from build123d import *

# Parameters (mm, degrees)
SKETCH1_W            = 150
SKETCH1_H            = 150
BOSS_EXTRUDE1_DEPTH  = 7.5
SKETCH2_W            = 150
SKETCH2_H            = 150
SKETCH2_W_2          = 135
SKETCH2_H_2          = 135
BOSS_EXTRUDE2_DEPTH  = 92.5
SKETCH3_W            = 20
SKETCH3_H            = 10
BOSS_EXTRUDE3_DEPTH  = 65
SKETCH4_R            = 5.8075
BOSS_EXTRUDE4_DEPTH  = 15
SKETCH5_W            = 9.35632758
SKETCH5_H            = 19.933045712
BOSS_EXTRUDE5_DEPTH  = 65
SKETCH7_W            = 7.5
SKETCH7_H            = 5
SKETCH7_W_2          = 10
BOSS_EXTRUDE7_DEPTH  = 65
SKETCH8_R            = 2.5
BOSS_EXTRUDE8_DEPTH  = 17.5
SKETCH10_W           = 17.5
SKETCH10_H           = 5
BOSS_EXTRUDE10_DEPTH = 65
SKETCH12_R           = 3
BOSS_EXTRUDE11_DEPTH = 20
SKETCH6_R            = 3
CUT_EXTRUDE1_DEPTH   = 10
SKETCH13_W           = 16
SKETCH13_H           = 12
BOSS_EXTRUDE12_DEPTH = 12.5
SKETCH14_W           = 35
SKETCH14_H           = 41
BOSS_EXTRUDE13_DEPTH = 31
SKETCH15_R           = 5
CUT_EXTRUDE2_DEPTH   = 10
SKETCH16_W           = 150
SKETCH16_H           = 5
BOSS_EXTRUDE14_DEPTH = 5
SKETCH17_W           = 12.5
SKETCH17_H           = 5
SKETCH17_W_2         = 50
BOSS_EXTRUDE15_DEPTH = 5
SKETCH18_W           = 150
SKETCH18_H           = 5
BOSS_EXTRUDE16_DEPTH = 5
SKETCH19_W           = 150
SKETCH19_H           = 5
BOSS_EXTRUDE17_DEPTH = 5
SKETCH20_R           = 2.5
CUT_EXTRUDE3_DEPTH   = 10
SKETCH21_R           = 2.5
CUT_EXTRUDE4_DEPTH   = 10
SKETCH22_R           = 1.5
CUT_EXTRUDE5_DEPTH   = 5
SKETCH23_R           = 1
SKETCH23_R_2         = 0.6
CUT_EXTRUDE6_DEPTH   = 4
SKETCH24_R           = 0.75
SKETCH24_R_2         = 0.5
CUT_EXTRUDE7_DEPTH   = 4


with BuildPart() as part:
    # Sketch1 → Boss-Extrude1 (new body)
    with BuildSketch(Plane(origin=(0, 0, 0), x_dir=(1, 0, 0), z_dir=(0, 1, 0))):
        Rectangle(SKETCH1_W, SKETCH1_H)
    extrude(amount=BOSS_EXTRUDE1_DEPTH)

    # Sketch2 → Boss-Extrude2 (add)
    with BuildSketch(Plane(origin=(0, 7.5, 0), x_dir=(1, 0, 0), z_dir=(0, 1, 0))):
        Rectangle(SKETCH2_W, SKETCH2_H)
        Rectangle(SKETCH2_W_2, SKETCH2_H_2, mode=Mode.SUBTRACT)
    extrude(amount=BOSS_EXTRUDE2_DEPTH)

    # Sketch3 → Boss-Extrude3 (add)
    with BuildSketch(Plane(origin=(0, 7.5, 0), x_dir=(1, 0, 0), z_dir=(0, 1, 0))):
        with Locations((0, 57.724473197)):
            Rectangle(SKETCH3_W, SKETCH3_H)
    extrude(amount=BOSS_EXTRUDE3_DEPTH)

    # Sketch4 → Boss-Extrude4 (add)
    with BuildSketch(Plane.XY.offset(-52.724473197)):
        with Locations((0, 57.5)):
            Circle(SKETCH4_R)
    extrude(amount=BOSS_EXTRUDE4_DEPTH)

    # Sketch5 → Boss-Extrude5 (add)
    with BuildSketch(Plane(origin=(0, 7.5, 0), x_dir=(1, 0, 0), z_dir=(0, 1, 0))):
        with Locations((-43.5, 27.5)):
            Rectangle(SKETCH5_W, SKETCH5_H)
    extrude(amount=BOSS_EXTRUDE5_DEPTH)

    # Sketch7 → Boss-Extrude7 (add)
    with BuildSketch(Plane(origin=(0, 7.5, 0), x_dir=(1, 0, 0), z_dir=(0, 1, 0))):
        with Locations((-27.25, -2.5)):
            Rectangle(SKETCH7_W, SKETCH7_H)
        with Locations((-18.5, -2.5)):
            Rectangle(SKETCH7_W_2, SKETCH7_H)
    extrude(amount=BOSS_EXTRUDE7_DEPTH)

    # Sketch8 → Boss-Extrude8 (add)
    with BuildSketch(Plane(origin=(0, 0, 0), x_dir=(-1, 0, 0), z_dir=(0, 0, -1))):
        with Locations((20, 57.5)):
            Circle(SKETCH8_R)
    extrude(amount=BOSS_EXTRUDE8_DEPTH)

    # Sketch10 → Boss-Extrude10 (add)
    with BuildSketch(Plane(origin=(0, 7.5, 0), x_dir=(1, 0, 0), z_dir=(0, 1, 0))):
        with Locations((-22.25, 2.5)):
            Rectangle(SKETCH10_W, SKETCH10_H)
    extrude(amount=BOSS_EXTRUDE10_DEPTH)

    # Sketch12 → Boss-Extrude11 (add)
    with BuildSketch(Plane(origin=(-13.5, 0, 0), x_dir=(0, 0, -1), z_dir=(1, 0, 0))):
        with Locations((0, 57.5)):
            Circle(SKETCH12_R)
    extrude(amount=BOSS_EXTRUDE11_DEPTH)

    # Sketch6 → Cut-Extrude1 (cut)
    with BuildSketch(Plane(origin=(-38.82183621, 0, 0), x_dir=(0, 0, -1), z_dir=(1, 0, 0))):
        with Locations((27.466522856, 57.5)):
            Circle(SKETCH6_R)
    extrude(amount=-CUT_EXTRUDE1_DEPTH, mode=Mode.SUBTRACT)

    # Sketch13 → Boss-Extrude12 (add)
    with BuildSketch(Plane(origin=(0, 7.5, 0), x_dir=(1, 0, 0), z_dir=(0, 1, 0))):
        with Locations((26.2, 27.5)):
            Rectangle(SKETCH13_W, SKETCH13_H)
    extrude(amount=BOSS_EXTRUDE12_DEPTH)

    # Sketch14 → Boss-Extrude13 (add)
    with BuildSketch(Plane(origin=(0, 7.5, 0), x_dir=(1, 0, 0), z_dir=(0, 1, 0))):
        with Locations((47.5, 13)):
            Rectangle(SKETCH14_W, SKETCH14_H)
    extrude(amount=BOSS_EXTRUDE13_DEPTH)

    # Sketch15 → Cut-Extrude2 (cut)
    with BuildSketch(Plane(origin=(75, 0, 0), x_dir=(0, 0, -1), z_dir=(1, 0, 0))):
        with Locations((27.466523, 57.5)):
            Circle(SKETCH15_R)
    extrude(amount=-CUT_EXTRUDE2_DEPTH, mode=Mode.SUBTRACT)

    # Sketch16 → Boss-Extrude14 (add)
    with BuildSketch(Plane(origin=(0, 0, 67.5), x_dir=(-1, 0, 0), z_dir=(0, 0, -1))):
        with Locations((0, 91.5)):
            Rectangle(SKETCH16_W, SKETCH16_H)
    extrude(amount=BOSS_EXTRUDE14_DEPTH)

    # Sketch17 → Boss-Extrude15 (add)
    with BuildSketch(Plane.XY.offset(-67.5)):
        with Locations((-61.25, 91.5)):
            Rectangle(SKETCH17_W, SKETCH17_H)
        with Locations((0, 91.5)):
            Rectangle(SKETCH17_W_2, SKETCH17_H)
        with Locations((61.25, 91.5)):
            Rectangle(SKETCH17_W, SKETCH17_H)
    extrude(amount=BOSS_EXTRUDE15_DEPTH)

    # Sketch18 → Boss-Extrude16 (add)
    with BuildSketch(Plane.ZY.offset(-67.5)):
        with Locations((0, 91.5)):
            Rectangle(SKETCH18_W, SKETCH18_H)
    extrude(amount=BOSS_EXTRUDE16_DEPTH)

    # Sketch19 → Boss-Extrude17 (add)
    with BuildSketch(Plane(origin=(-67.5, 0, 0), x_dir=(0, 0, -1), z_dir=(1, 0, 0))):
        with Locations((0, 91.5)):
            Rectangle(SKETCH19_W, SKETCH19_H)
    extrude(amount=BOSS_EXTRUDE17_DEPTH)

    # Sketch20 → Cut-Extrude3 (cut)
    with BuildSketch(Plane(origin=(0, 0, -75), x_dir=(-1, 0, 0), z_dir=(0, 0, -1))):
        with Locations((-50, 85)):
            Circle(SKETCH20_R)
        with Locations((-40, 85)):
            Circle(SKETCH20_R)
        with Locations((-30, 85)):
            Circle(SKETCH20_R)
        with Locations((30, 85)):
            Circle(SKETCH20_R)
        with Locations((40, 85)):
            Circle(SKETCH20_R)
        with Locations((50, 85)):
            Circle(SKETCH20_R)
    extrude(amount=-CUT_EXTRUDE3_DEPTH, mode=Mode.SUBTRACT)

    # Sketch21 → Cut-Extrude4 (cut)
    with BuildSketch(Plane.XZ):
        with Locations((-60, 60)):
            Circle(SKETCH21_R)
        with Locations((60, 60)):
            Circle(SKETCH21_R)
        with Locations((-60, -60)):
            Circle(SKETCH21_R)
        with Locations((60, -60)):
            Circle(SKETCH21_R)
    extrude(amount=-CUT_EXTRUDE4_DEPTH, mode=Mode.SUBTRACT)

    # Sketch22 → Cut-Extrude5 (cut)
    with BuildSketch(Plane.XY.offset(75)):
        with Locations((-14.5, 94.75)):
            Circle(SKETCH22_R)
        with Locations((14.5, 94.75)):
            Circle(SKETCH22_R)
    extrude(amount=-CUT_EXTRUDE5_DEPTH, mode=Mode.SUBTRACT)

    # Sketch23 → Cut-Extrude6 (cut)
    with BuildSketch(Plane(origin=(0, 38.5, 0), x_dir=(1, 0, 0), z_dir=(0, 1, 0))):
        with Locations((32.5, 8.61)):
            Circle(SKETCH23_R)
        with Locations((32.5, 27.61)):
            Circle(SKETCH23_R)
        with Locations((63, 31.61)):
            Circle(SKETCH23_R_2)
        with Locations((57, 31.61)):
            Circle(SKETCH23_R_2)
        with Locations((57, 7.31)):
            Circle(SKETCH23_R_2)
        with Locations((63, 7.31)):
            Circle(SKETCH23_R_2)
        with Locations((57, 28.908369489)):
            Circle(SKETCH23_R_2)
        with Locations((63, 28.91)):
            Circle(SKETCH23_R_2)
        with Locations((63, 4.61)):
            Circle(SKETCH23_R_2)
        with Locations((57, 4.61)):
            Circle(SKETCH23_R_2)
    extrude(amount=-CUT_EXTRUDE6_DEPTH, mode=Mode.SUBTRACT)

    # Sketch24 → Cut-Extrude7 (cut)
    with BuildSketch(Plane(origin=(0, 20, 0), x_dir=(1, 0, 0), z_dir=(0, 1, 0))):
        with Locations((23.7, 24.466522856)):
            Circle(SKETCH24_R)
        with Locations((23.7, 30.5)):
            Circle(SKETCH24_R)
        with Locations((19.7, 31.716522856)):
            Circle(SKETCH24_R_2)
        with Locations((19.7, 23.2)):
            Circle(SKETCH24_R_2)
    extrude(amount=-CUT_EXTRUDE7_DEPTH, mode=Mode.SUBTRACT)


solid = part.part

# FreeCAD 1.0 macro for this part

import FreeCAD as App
import Part
import Sketcher
from FreeCAD import Vector
Q = App.Units.Quantity

doc = App.newDocument("Part")
body = doc.addObject("PartDesign::Body", "Body")

# Sketch on XZ plane
sketch1 = doc.addObject("Sketcher::SketchObject", "Sketch")
body.addObject(sketch1)
sketch1.AttachmentSupport = (doc.XZ_Plane, [""])
sketch1.MapMode = "FlatFace"
sketch1.addGeometry(Part.LineSegment(Vector(-75, -75, 0), Vector(-75, 75, 0)), False)
sketch1.addGeometry(Part.LineSegment(Vector(-75, 75, 0), Vector(75, 75, 0)), False)
sketch1.addGeometry(Part.LineSegment(Vector(75, 75, 0), Vector(75, -75, 0)), False)
sketch1.addGeometry(Part.LineSegment(Vector(75, -75, 0), Vector(-75, -75, 0)), False)
sketch1.addConstraint(Sketcher.Constraint("Coincident", 0, 2, 1, 1))
sketch1.addConstraint(Sketcher.Constraint("Coincident", 1, 2, 2, 1))
sketch1.addConstraint(Sketcher.Constraint("Coincident", 2, 2, 3, 1))
sketch1.addConstraint(Sketcher.Constraint("Coincident", 3, 2, 0, 1))
sketch1.addConstraint(Sketcher.Constraint("Vertical", 0))
sketch1.addConstraint(Sketcher.Constraint("Horizontal", 1))
sketch1.addConstraint(Sketcher.Constraint("Vertical", 2))
sketch1.addConstraint(Sketcher.Constraint("Horizontal", 3))
sketch1.addConstraint(Sketcher.Constraint("Symmetric", 0, 2, 2, 2, -1, 1))
sketch1.addConstraint(Sketcher.Constraint("Equal", 3, 0))
sketch1.addConstraint(Sketcher.Constraint("DistanceX", 1, 1, 1, 2, Q("150 mm")))
pad1 = doc.addObject("PartDesign::Pad", "Pad")
body.addObject(pad1)
pad1.Profile = sketch1
pad1.Length = 7.5
pad1.Reversed = True

# Sketch on XZ plane
sketch2 = doc.addObject("Sketcher::SketchObject", "Sketch001")
body.addObject(sketch2)
sketch2.AttachmentSupport = (doc.XZ_Plane, [""])
sketch2.MapMode = "FlatFace"
sketch2.AttachmentOffset = App.Placement(Vector(0, 0, -7.5), App.Rotation())
sketch2.addGeometry(Part.LineSegment(Vector(-75, -75, 0), Vector(-75, 75, 0)), False)
sketch2.addGeometry(Part.LineSegment(Vector(-75, 75, 0), Vector(75, 75, 0)), False)
sketch2.addGeometry(Part.LineSegment(Vector(75, 75, 0), Vector(75, -75, 0)), False)
sketch2.addGeometry(Part.LineSegment(Vector(75, -75, 0), Vector(-75, -75, 0)), False)
sketch2.addGeometry(Part.LineSegment(Vector(68, 68, 0), Vector(-68, 68, 0)), False)
sketch2.addGeometry(Part.LineSegment(Vector(-68, 68, 0), Vector(-68, -68, 0)), False)
sketch2.addGeometry(Part.LineSegment(Vector(-68, -68, 0), Vector(68, -68, 0)), False)
sketch2.addGeometry(Part.LineSegment(Vector(68, -68, 0), Vector(68, 68, 0)), False)
sketch2.addConstraint(Sketcher.Constraint("Coincident", 0, 2, 1, 1))
sketch2.addConstraint(Sketcher.Constraint("Coincident", 1, 2, 2, 1))
sketch2.addConstraint(Sketcher.Constraint("Coincident", 2, 2, 3, 1))
sketch2.addConstraint(Sketcher.Constraint("Coincident", 3, 2, 0, 1))
sketch2.addConstraint(Sketcher.Constraint("Coincident", 4, 2, 5, 1))
sketch2.addConstraint(Sketcher.Constraint("Coincident", 5, 2, 6, 1))
sketch2.addConstraint(Sketcher.Constraint("Coincident", 6, 2, 7, 1))
sketch2.addConstraint(Sketcher.Constraint("Coincident", 7, 2, 4, 1))
sketch2.addConstraint(Sketcher.Constraint("Vertical", 0))
sketch2.addConstraint(Sketcher.Constraint("Horizontal", 1))
sketch2.addConstraint(Sketcher.Constraint("Vertical", 2))
sketch2.addConstraint(Sketcher.Constraint("Horizontal", 3))
sketch2.addConstraint(Sketcher.Constraint("Horizontal", 4))
sketch2.addConstraint(Sketcher.Constraint("Vertical", 5))
sketch2.addConstraint(Sketcher.Constraint("Horizontal", 6))
sketch2.addConstraint(Sketcher.Constraint("Vertical", 7))
sketch2.addConstraint(Sketcher.Constraint("Symmetric", 0, 2, 2, 2, -1, 1))
sketch2.addConstraint(Sketcher.Constraint("Symmetric", 4, 2, 6, 2, -1, 1))
sketch2.addConstraint(Sketcher.Constraint("Equal", 3, 0))
sketch2.addConstraint(Sketcher.Constraint("Equal", 6, 5))
sketch2.addConstraint(Sketcher.Constraint("DistanceX", 1, 1, 1, 2, Q("150 mm")))
sketch2.addConstraint(Sketcher.Constraint("DistanceX", 4, 2, 4, 1, Q("135 mm")))
pad2 = doc.addObject("PartDesign::Pad", "Pad001")
body.addObject(pad2)
pad2.Profile = sketch2
pad2.Length = 92.5
pad2.Reversed = True

# Sketch on XZ plane
sketch3 = doc.addObject("Sketcher::SketchObject", "Sketch002")
body.addObject(sketch3)
sketch3.AttachmentSupport = (doc.XZ_Plane, [""])
sketch3.MapMode = "FlatFace"
sketch3.AttachmentOffset = App.Placement(Vector(0, 0, -7.5), App.Rotation())
sketch3.addGeometry(Part.LineSegment(Vector(-10, -63, 0), Vector(-10, -53, 0)), False)
sketch3.addGeometry(Part.LineSegment(Vector(-10, -53, 0), Vector(10, -53, 0)), False)
sketch3.addGeometry(Part.LineSegment(Vector(10, -53, 0), Vector(10, -63, 0)), False)
sketch3.addGeometry(Part.LineSegment(Vector(10, -63, 0), Vector(-10, -63, 0)), False)
sketch3.addConstraint(Sketcher.Constraint("Coincident", 0, 2, 1, 1))
sketch3.addConstraint(Sketcher.Constraint("Coincident", 1, 2, 2, 1))
sketch3.addConstraint(Sketcher.Constraint("Coincident", 2, 2, 3, 1))
sketch3.addConstraint(Sketcher.Constraint("Coincident", 3, 2, 0, 1))
sketch3.addConstraint(Sketcher.Constraint("Vertical", 0))
sketch3.addConstraint(Sketcher.Constraint("Horizontal", 1))
sketch3.addConstraint(Sketcher.Constraint("Vertical", 2))
sketch3.addConstraint(Sketcher.Constraint("Horizontal", 3))
sketch3.addConstraint(Sketcher.Constraint("DistanceX", 1, 1, 1, 2, Q("20 mm")))
sketch3.addConstraint(Sketcher.Constraint("DistanceY", 0, 1, 0, 2, Q("10 mm")))
sketch3.addConstraint(Sketcher.Constraint("DistanceX", 0, 2, -1, 1, Q("10 mm")))
sketch3.addConstraint(Sketcher.Constraint("DistanceY", 0, 2, -1, 1, Q("52.724473 mm")))
pad3 = doc.addObject("PartDesign::Pad", "Pad002")
body.addObject(pad3)
pad3.Profile = sketch3
pad3.Length = 65
pad3.Reversed = True

# Sketch on XY plane
sketch4 = doc.addObject("Sketcher::SketchObject", "Sketch003")
body.addObject(sketch4)
sketch4.AttachmentSupport = (doc.XY_Plane, [""])
sketch4.MapMode = "FlatFace"
sketch4.AttachmentOffset = App.Placement(Vector(0, 0, -52.724473), App.Rotation())
sketch4.addGeometry(Part.Circle(Vector(0, 58, 0), Vector(0, 0, 1), 6), False)
sketch4.addConstraint(Sketcher.Constraint("PointOnObject", 0, 3, -2))
sketch4.addConstraint(Sketcher.Constraint("Diameter", 0, Q("11.615 mm")))
sketch4.addConstraint(Sketcher.Constraint("DistanceY", -1, 1, 0, 3, Q("57.5 mm")))
pad4 = doc.addObject("PartDesign::Pad", "Pad003")
body.addObject(pad4)
pad4.Profile = sketch4
pad4.Length = 15

# Sketch on XZ plane
sketch5 = doc.addObject("Sketcher::SketchObject", "Sketch004")
body.addObject(sketch5)
sketch5.AttachmentSupport = (doc.XZ_Plane, [""])
sketch5.MapMode = "FlatFace"
sketch5.AttachmentOffset = App.Placement(Vector(0, 0, -7.5), App.Rotation())
sketch5.addGeometry(Part.LineSegment(Vector(-48, -37, 0), Vector(-48, -18, 0)), False)
sketch5.addGeometry(Part.LineSegment(Vector(-48, -18, 0), Vector(-39, -18, 0)), False)
sketch5.addGeometry(Part.LineSegment(Vector(-39, -18, 0), Vector(-39, -37, 0)), False)
sketch5.addGeometry(Part.LineSegment(Vector(-39, -37, 0), Vector(-48, -37, 0)), False)
sketch5.addConstraint(Sketcher.Constraint("Coincident", 0, 2, 1, 1))
sketch5.addConstraint(Sketcher.Constraint("Coincident", 1, 2, 2, 1))
sketch5.addConstraint(Sketcher.Constraint("Coincident", 2, 2, 3, 1))
sketch5.addConstraint(Sketcher.Constraint("Coincident", 3, 2, 0, 1))
sketch5.addConstraint(Sketcher.Constraint("Vertical", 0))
sketch5.addConstraint(Sketcher.Constraint("Horizontal", 1))
sketch5.addConstraint(Sketcher.Constraint("Vertical", 2))
sketch5.addConstraint(Sketcher.Constraint("Horizontal", 3))
sketch5.addConstraint(Sketcher.Constraint("DistanceX", 1, 1, 1, 2, Q("9.356328 mm")))
sketch5.addConstraint(Sketcher.Constraint("DistanceY", 0, 1, 0, 2, Q("19.933046 mm")))
sketch5.addConstraint(Sketcher.Constraint("DistanceX", 0, 2, -1, 1, Q("48.178164 mm")))
sketch5.addConstraint(Sketcher.Constraint("DistanceY", 0, 2, -1, 1, Q("17.533477 mm")))
pad5 = doc.addObject("PartDesign::Pad", "Pad004")
body.addObject(pad5)
pad5.Profile = sketch5
pad5.Length = 65
pad5.Reversed = True

# Sketch on XZ plane
sketch6 = doc.addObject("Sketcher::SketchObject", "Sketch005")
body.addObject(sketch6)
sketch6.AttachmentSupport = (doc.XZ_Plane, [""])
sketch6.MapMode = "FlatFace"
sketch6.AttachmentOffset = App.Placement(Vector(0, 0, -7.5), App.Rotation())
sketch6.addGeometry(Part.LineSegment(Vector(-31, 0, 0), Vector(-31, 5, 0)), False)
sketch6.addGeometry(Part.LineSegment(Vector(-31, 5, 0), Vector(-14, 5, 0)), False)
sketch6.addGeometry(Part.LineSegment(Vector(-14, 5, 0), Vector(-14, 0, 0)), False)
sketch6.addGeometry(Part.LineSegment(Vector(-14, 0, 0), Vector(-31, 0, 0)), False)
sketch6.addConstraint(Sketcher.Constraint("Coincident", 0, 2, 1, 1))
sketch6.addConstraint(Sketcher.Constraint("Coincident", 1, 2, 2, 1))
sketch6.addConstraint(Sketcher.Constraint("Coincident", 2, 2, 3, 1))
sketch6.addConstraint(Sketcher.Constraint("Coincident", 3, 2, 0, 1))
sketch6.addConstraint(Sketcher.Constraint("Vertical", 0))
sketch6.addConstraint(Sketcher.Constraint("Horizontal", 1))
sketch6.addConstraint(Sketcher.Constraint("Vertical", 2))
sketch6.addConstraint(Sketcher.Constraint("Horizontal", 3))
sketch6.addConstraint(Sketcher.Constraint("PointOnObject", 2, 2, -1))
sketch6.addConstraint(Sketcher.Constraint("DistanceY", 0, 1, 0, 2, Q("5 mm")))
sketch6.addConstraint(Sketcher.Constraint("DistanceX", 1, 1, 1, 2, Q("17.5 mm")))
sketch6.addConstraint(Sketcher.Constraint("DistanceX", 0, 2, -1, 1, Q("31 mm")))
pad6 = doc.addObject("PartDesign::Pad", "Pad005")
body.addObject(pad6)
pad6.Profile = sketch6
pad6.Length = 65
pad6.Reversed = True

# Sketch on XY plane
sketch7 = doc.addObject("Sketcher::SketchObject", "Sketch006")
body.addObject(sketch7)
sketch7.AttachmentSupport = (doc.XY_Plane, [""])
sketch7.MapMode = "FlatFace"
sketch7.addGeometry(Part.Circle(Vector(-20, 57.5, 0), Vector(0, 0, 1), 2.5), False)
sketch7.addConstraint(Sketcher.Constraint("Diameter", 0, Q("5 mm")))
sketch7.addConstraint(Sketcher.Constraint("DistanceX", 0, 3, -1, 1, Q("20 mm")))
sketch7.addConstraint(Sketcher.Constraint("DistanceY", -1, 1, 0, 3, Q("57.5 mm")))
pad7 = doc.addObject("PartDesign::Pad", "Pad006")
body.addObject(pad7)
pad7.Profile = sketch7
pad7.Length = 17.5
pad7.Reversed = True

# Sketch on XZ plane
sketch8 = doc.addObject("Sketcher::SketchObject", "Sketch007")
body.addObject(sketch8)
sketch8.AttachmentSupport = (doc.XZ_Plane, [""])
sketch8.MapMode = "FlatFace"
sketch8.AttachmentOffset = App.Placement(Vector(0, 0, -7.5), App.Rotation())
sketch8.addGeometry(Part.LineSegment(Vector(-31, -5, 0), Vector(-31, 0, 0)), False)
sketch8.addGeometry(Part.LineSegment(Vector(-31, 0, 0), Vector(-14, 0, 0)), False)
sketch8.addGeometry(Part.LineSegment(Vector(-14, 0, 0), Vector(-14, -5, 0)), False)
sketch8.addGeometry(Part.LineSegment(Vector(-14, -5, 0), Vector(-31, -5, 0)), False)
sketch8.addConstraint(Sketcher.Constraint("Coincident", 0, 2, 1, 1))
sketch8.addConstraint(Sketcher.Constraint("Coincident", 1, 2, 2, 1))
sketch8.addConstraint(Sketcher.Constraint("Coincident", 2, 2, 3, 1))
sketch8.addConstraint(Sketcher.Constraint("Coincident", 3, 2, 0, 1))
sketch8.addConstraint(Sketcher.Constraint("Vertical", 0))
sketch8.addConstraint(Sketcher.Constraint("Horizontal", 1))
sketch8.addConstraint(Sketcher.Constraint("Vertical", 2))
sketch8.addConstraint(Sketcher.Constraint("Horizontal", 3))
sketch8.addConstraint(Sketcher.Constraint("PointOnObject", 0, 2, -1))
sketch8.addConstraint(Sketcher.Constraint("DistanceY", 0, 1, 0, 2, Q("5 mm")))
sketch8.addConstraint(Sketcher.Constraint("DistanceX", 1, 1, 1, 2, Q("17.5 mm")))
sketch8.addConstraint(Sketcher.Constraint("DistanceX", 0, 2, -1, 1, Q("31 mm")))
pad8 = doc.addObject("PartDesign::Pad", "Pad007")
body.addObject(pad8)
pad8.Profile = sketch8
pad8.Length = 65
pad8.Reversed = True

# Sketch on YZ plane
sketch9 = doc.addObject("Sketcher::SketchObject", "Sketch008")
body.addObject(sketch9)
sketch9.AttachmentSupport = (doc.YZ_Plane, [""])
sketch9.MapMode = "FlatFace"
sketch9.AttachmentOffset = App.Placement(Vector(0, 0, -13.5), App.Rotation())
sketch9.addGeometry(Part.Circle(Vector(57.5, 0, 0), Vector(0, 0, 1), 3), False)
sketch9.addConstraint(Sketcher.Constraint("PointOnObject", 0, 3, -1))
sketch9.addConstraint(Sketcher.Constraint("Diameter", 0, Q("6 mm")))
sketch9.addConstraint(Sketcher.Constraint("DistanceX", -1, 1, 0, 3, Q("57.5 mm")))
pad9 = doc.addObject("PartDesign::Pad", "Pad008")
body.addObject(pad9)
pad9.Profile = sketch9
pad9.Length = 20

# Sketch on YZ plane
sketch10 = doc.addObject("Sketcher::SketchObject", "Sketch009")
body.addObject(sketch10)
sketch10.AttachmentSupport = (doc.YZ_Plane, [""])
sketch10.MapMode = "FlatFace"
sketch10.AttachmentOffset = App.Placement(Vector(0, 0, -38.821836), App.Rotation())
sketch10.addGeometry(Part.Circle(Vector(57.5, -27.5, 0), Vector(0, 0, 1), 3), False)
sketch10.addConstraint(Sketcher.Constraint("Diameter", 0, Q("6 mm")))
sketch10.addConstraint(Sketcher.Constraint("DistanceX", -1, 1, 0, 3, Q("57.5 mm")))
sketch10.addConstraint(Sketcher.Constraint("DistanceY", 0, 3, -1, 1, Q("27.466523 mm")))
pocket1 = doc.addObject("PartDesign::Pocket", "Pocket")
body.addObject(pocket1)
pocket1.Profile = sketch10
pocket1.Length = 10

# Sketch on XZ plane
sketch11 = doc.addObject("Sketcher::SketchObject", "Sketch010")
body.addObject(sketch11)
sketch11.AttachmentSupport = (doc.XZ_Plane, [""])
sketch11.MapMode = "FlatFace"
sketch11.AttachmentOffset = App.Placement(Vector(0, 0, -7.5), App.Rotation())
sketch11.addGeometry(Part.LineSegment(Vector(18, -34, 0), Vector(18, -22, 0)), False)
sketch11.addGeometry(Part.LineSegment(Vector(18, -22, 0), Vector(34, -22, 0)), False)
sketch11.addGeometry(Part.LineSegment(Vector(34, -22, 0), Vector(34, -34, 0)), False)
sketch11.addGeometry(Part.LineSegment(Vector(34, -34, 0), Vector(18, -34, 0)), False)
sketch11.addConstraint(Sketcher.Constraint("Coincident", 0, 2, 1, 1))
sketch11.addConstraint(Sketcher.Constraint("Coincident", 1, 2, 2, 1))
sketch11.addConstraint(Sketcher.Constraint("Coincident", 2, 2, 3, 1))
sketch11.addConstraint(Sketcher.Constraint("Coincident", 3, 2, 0, 1))
sketch11.addConstraint(Sketcher.Constraint("Vertical", 0))
sketch11.addConstraint(Sketcher.Constraint("Horizontal", 1))
sketch11.addConstraint(Sketcher.Constraint("Vertical", 2))
sketch11.addConstraint(Sketcher.Constraint("Horizontal", 3))
sketch11.addConstraint(Sketcher.Constraint("DistanceX", 1, 1, 1, 2, Q("16 mm")))
sketch11.addConstraint(Sketcher.Constraint("DistanceY", 0, 1, 0, 2, Q("12 mm")))
sketch11.addConstraint(Sketcher.Constraint("DistanceX", -1, 1, 0, 2, Q("18.2 mm")))
sketch11.addConstraint(Sketcher.Constraint("DistanceY", 0, 2, -1, 1, Q("21.5 mm")))
pad10 = doc.addObject("PartDesign::Pad", "Pad009")
body.addObject(pad10)
pad10.Profile = sketch11
pad10.Length = 12.5
pad10.Reversed = True

# Sketch on XZ plane
sketch12 = doc.addObject("Sketcher::SketchObject", "Sketch011")
body.addObject(sketch12)
sketch12.AttachmentSupport = (doc.XZ_Plane, [""])
sketch12.MapMode = "FlatFace"
sketch12.AttachmentOffset = App.Placement(Vector(0, 0, -7.5), App.Rotation())
sketch12.addGeometry(Part.LineSegment(Vector(30, -34, 0), Vector(30, 8, 0)), False)
sketch12.addGeometry(Part.LineSegment(Vector(30, 8, 0), Vector(65, 8, 0)), False)
sketch12.addGeometry(Part.LineSegment(Vector(65, 8, 0), Vector(65, -34, 0)), False)
sketch12.addGeometry(Part.LineSegment(Vector(65, -34, 0), Vector(30, -34, 0)), False)
sketch12.addConstraint(Sketcher.Constraint("Coincident", 0, 2, 1, 1))
sketch12.addConstraint(Sketcher.Constraint("Coincident", 1, 2, 2, 1))
sketch12.addConstraint(Sketcher.Constraint("Coincident", 2, 2, 3, 1))
sketch12.addConstraint(Sketcher.Constraint("Coincident", 3, 2, 0, 1))
sketch12.addConstraint(Sketcher.Constraint("Vertical", 0))
sketch12.addConstraint(Sketcher.Constraint("Horizontal", 1))
sketch12.addConstraint(Sketcher.Constraint("Vertical", 2))
sketch12.addConstraint(Sketcher.Constraint("Horizontal", 3))
sketch12.addConstraint(Sketcher.Constraint("DistanceX", 1, 1, 1, 2, Q("35 mm")))
sketch12.addConstraint(Sketcher.Constraint("DistanceY", 0, 1, 0, 2, Q("41 mm")))
sketch12.addConstraint(Sketcher.Constraint("DistanceX", -1, 1, 0, 2, Q("30 mm")))
sketch12.addConstraint(Sketcher.Constraint("DistanceY", -1, 1, 0, 2, Q("7.5 mm")))
pad11 = doc.addObject("PartDesign::Pad", "Pad010")
body.addObject(pad11)
pad11.Profile = sketch12
pad11.Length = 31
pad11.Reversed = True

# Sketch on YZ plane
sketch13 = doc.addObject("Sketcher::SketchObject", "Sketch012")
body.addObject(sketch13)
sketch13.AttachmentSupport = (doc.YZ_Plane, [""])
sketch13.MapMode = "FlatFace"
sketch13.AttachmentOffset = App.Placement(Vector(0, 0, 75), App.Rotation())
sketch13.addGeometry(Part.Circle(Vector(58, -27, 0), Vector(0, 0, 1), 5), False)
sketch13.addConstraint(Sketcher.Constraint("Diameter", 0, Q("10 mm")))
sketch13.addConstraint(Sketcher.Constraint("DistanceX", -1, 1, 0, 3, Q("57.5 mm")))
sketch13.addConstraint(Sketcher.Constraint("DistanceY", 0, 3, -1, 1, Q("27.466523 mm")))
pocket2 = doc.addObject("PartDesign::Pocket", "Pocket001")
body.addObject(pocket2)
pocket2.Profile = sketch13
pocket2.Length = 10

# Sketch on XY plane
sketch14 = doc.addObject("Sketcher::SketchObject", "Sketch013")
body.addObject(sketch14)
sketch14.AttachmentSupport = (doc.XY_Plane, [""])
sketch14.MapMode = "FlatFace"
sketch14.AttachmentOffset = App.Placement(Vector(0, 0, 67.5), App.Rotation())
sketch14.addGeometry(Part.LineSegment(Vector(75, 94, 0), Vector(75, 89, 0)), False)
sketch14.addGeometry(Part.LineSegment(Vector(75, 89, 0), Vector(-75, 89, 0)), False)
sketch14.addGeometry(Part.LineSegment(Vector(-75, 89, 0), Vector(-75, 94, 0)), False)
sketch14.addGeometry(Part.LineSegment(Vector(-75, 94, 0), Vector(75, 94, 0)), False)
sketch14.addConstraint(Sketcher.Constraint("Coincident", 0, 2, 1, 1))
sketch14.addConstraint(Sketcher.Constraint("Coincident", 1, 2, 2, 1))
sketch14.addConstraint(Sketcher.Constraint("Coincident", 2, 2, 3, 1))
sketch14.addConstraint(Sketcher.Constraint("Coincident", 3, 2, 0, 1))
sketch14.addConstraint(Sketcher.Constraint("Vertical", 0))
sketch14.addConstraint(Sketcher.Constraint("Horizontal", 1))
sketch14.addConstraint(Sketcher.Constraint("Vertical", 2))
sketch14.addConstraint(Sketcher.Constraint("Horizontal", 3))
sketch14.addConstraint(Sketcher.Constraint("DistanceX", 1, 2, 1, 1, Q("150 mm")))
sketch14.addConstraint(Sketcher.Constraint("DistanceY", 0, 2, 0, 1, Q("5 mm")))
sketch14.addConstraint(Sketcher.Constraint("DistanceX", -1, 1, 0, 2, Q("75 mm")))
sketch14.addConstraint(Sketcher.Constraint("DistanceY", -1, 1, 0, 2, Q("89 mm")))
pad12 = doc.addObject("PartDesign::Pad", "Pad011")
body.addObject(pad12)
pad12.Profile = sketch14
pad12.Length = 5
pad12.Reversed = True

# Sketch on XY plane
sketch15 = doc.addObject("Sketcher::SketchObject", "Sketch014")
body.addObject(sketch15)
sketch15.AttachmentSupport = (doc.XY_Plane, [""])
sketch15.MapMode = "FlatFace"
sketch15.AttachmentOffset = App.Placement(Vector(0, 0, -67.5), App.Rotation())
sketch15.addGeometry(Part.LineSegment(Vector(-68, 94, 0), Vector(-68, 89, 0)), False)
sketch15.addGeometry(Part.LineSegment(Vector(-68, 89, 0), Vector(-55, 89, 0)), False)
sketch15.addGeometry(Part.LineSegment(Vector(-55, 89, 0), Vector(-55, 94, 0)), False)
sketch15.addGeometry(Part.LineSegment(Vector(-55, 94, 0), Vector(-68, 94, 0)), False)
sketch15.addGeometry(Part.LineSegment(Vector(-25, 94, 0), Vector(-25, 89, 0)), False)
sketch15.addGeometry(Part.LineSegment(Vector(-25, 89, 0), Vector(25, 89, 0)), False)
sketch15.addGeometry(Part.LineSegment(Vector(25, 89, 0), Vector(25, 94, 0)), False)
sketch15.addGeometry(Part.LineSegment(Vector(25, 94, 0), Vector(-25, 94, 0)), False)
sketch15.addGeometry(Part.LineSegment(Vector(55, 94, 0), Vector(55, 89, 0)), False)
sketch15.addGeometry(Part.LineSegment(Vector(55, 89, 0), Vector(68, 89, 0)), False)
sketch15.addGeometry(Part.LineSegment(Vector(68, 89, 0), Vector(68, 94, 0)), False)
sketch15.addGeometry(Part.LineSegment(Vector(68, 94, 0), Vector(55, 94, 0)), False)
sketch15.addConstraint(Sketcher.Constraint("Coincident", 0, 2, 1, 1))
sketch15.addConstraint(Sketcher.Constraint("Coincident", 1, 2, 2, 1))
sketch15.addConstraint(Sketcher.Constraint("Coincident", 2, 2, 3, 1))
sketch15.addConstraint(Sketcher.Constraint("Coincident", 3, 2, 0, 1))
sketch15.addConstraint(Sketcher.Constraint("Coincident", 4, 2, 5, 1))
sketch15.addConstraint(Sketcher.Constraint("Coincident", 5, 2, 6, 1))
sketch15.addConstraint(Sketcher.Constraint("Coincident", 6, 2, 7, 1))
sketch15.addConstraint(Sketcher.Constraint("Coincident", 7, 2, 4, 1))
sketch15.addConstraint(Sketcher.Constraint("Coincident", 8, 2, 9, 1))
sketch15.addConstraint(Sketcher.Constraint("Coincident", 9, 2, 10, 1))
sketch15.addConstraint(Sketcher.Constraint("Coincident", 10, 2, 11, 1))
sketch15.addConstraint(Sketcher.Constraint("Coincident", 11, 2, 8, 1))
sketch15.addConstraint(Sketcher.Constraint("Vertical", 0))
sketch15.addConstraint(Sketcher.Constraint("Horizontal", 1))
sketch15.addConstraint(Sketcher.Constraint("Vertical", 2))
sketch15.addConstraint(Sketcher.Constraint("Horizontal", 3))
sketch15.addConstraint(Sketcher.Constraint("Vertical", 4))
sketch15.addConstraint(Sketcher.Constraint("Horizontal", 5))
sketch15.addConstraint(Sketcher.Constraint("Vertical", 6))
sketch15.addConstraint(Sketcher.Constraint("Horizontal", 7))
sketch15.addConstraint(Sketcher.Constraint("Vertical", 8))
sketch15.addConstraint(Sketcher.Constraint("Horizontal", 9))
sketch15.addConstraint(Sketcher.Constraint("Vertical", 10))
sketch15.addConstraint(Sketcher.Constraint("Horizontal", 11))
sketch15.addConstraint(Sketcher.Constraint("Symmetric", 1, 2, 8, 2, -2))
sketch15.addConstraint(Sketcher.Constraint("Symmetric", 3, 2, 10, 2, -2))
sketch15.addConstraint(Sketcher.Constraint("Horizontal", 1, 2, 4, 2))
sketch15.addConstraint(Sketcher.Constraint("Horizontal", 3, 2, 6, 2))
sketch15.addConstraint(Sketcher.Constraint("DistanceX", 5, 1, 5, 2, Q("50 mm")))
sketch15.addConstraint(Sketcher.Constraint("DistanceY", 0, 2, 0, 1, Q("5 mm")))
sketch15.addConstraint(Sketcher.Constraint("DistanceX", 1, 1, 1, 2, Q("12.5 mm")))
sketch15.addConstraint(Sketcher.Constraint("DistanceY", -1, 1, 0, 2, Q("89 mm")))
sketch15.addConstraint(Sketcher.Constraint("DistanceX", 1, 2, -1, 1, Q("55 mm")))
sketch15.addConstraint(Sketcher.Constraint("DistanceX", 4, 2, -1, 1, Q("25 mm")))
pad13 = doc.addObject("PartDesign::Pad", "Pad012")
body.addObject(pad13)
pad13.Profile = sketch15
pad13.Length = 5

# Sketch on YZ plane
sketch16 = doc.addObject("Sketcher::SketchObject", "Sketch015")
body.addObject(sketch16)
sketch16.AttachmentSupport = (doc.YZ_Plane, [""])
sketch16.MapMode = "FlatFace"
sketch16.AttachmentOffset = App.Placement(Vector(0, 0, 67.5), App.Rotation())
sketch16.addGeometry(Part.LineSegment(Vector(94, -75, 0), Vector(89, -75, 0)), False)
sketch16.addGeometry(Part.LineSegment(Vector(89, -75, 0), Vector(89, 75, 0)), False)
sketch16.addGeometry(Part.LineSegment(Vector(89, 75, 0), Vector(94, 75, 0)), False)
sketch16.addGeometry(Part.LineSegment(Vector(94, 75, 0), Vector(94, -75, 0)), False)
sketch16.addConstraint(Sketcher.Constraint("Coincident", 0, 2, 1, 1))
sketch16.addConstraint(Sketcher.Constraint("Coincident", 1, 2, 2, 1))
sketch16.addConstraint(Sketcher.Constraint("Coincident", 2, 2, 3, 1))
sketch16.addConstraint(Sketcher.Constraint("Coincident", 3, 2, 0, 1))
sketch16.addConstraint(Sketcher.Constraint("Horizontal", 0))
sketch16.addConstraint(Sketcher.Constraint("Vertical", 1))
sketch16.addConstraint(Sketcher.Constraint("Horizontal", 2))
sketch16.addConstraint(Sketcher.Constraint("Vertical", 3))
sketch16.addConstraint(Sketcher.Constraint("DistanceX", 0, 2, 0, 1, Q("5 mm")))
sketch16.addConstraint(Sketcher.Constraint("DistanceY", 1, 1, 1, 2, Q("150 mm")))
sketch16.addConstraint(Sketcher.Constraint("DistanceX", -1, 1, 0, 2, Q("89 mm")))
sketch16.addConstraint(Sketcher.Constraint("DistanceY", 0, 2, -1, 1, Q("75 mm")))
pad14 = doc.addObject("PartDesign::Pad", "Pad013")
body.addObject(pad14)
pad14.Profile = sketch16
pad14.Length = 5
pad14.Reversed = True

# Sketch on YZ plane
sketch17 = doc.addObject("Sketcher::SketchObject", "Sketch016")
body.addObject(sketch17)
sketch17.AttachmentSupport = (doc.YZ_Plane, [""])
sketch17.MapMode = "FlatFace"
sketch17.AttachmentOffset = App.Placement(Vector(0, 0, -67.5), App.Rotation())
sketch17.addGeometry(Part.LineSegment(Vector(94, 75, 0), Vector(89, 75, 0)), False)
sketch17.addGeometry(Part.LineSegment(Vector(89, 75, 0), Vector(89, -75, 0)), False)
sketch17.addGeometry(Part.LineSegment(Vector(89, -75, 0), Vector(94, -75, 0)), False)
sketch17.addGeometry(Part.LineSegment(Vector(94, -75, 0), Vector(94, 75, 0)), False)
sketch17.addConstraint(Sketcher.Constraint("Coincident", 0, 2, 1, 1))
sketch17.addConstraint(Sketcher.Constraint("Coincident", 1, 2, 2, 1))
sketch17.addConstraint(Sketcher.Constraint("Coincident", 2, 2, 3, 1))
sketch17.addConstraint(Sketcher.Constraint("Coincident", 3, 2, 0, 1))
sketch17.addConstraint(Sketcher.Constraint("Horizontal", 0))
sketch17.addConstraint(Sketcher.Constraint("Vertical", 1))
sketch17.addConstraint(Sketcher.Constraint("Horizontal", 2))
sketch17.addConstraint(Sketcher.Constraint("Vertical", 3))
sketch17.addConstraint(Sketcher.Constraint("DistanceX", 0, 2, 0, 1, Q("5 mm")))
sketch17.addConstraint(Sketcher.Constraint("DistanceY", 1, 2, 1, 1, Q("150 mm")))
sketch17.addConstraint(Sketcher.Constraint("DistanceX", -1, 1, 0, 2, Q("89 mm")))
sketch17.addConstraint(Sketcher.Constraint("DistanceY", -1, 1, 0, 2, Q("75 mm")))
pad15 = doc.addObject("PartDesign::Pad", "Pad014")
body.addObject(pad15)
pad15.Profile = sketch17
pad15.Length = 5

# Sketch on XY plane
sketch18 = doc.addObject("Sketcher::SketchObject", "Sketch017")
body.addObject(sketch18)
sketch18.AttachmentSupport = (doc.XY_Plane, [""])
sketch18.MapMode = "FlatFace"
sketch18.AttachmentOffset = App.Placement(Vector(0, 0, -75), App.Rotation())
sketch18.addGeometry(Part.Circle(Vector(50, 85, 0), Vector(0, 0, 1), 2.5), False)
sketch18.addGeometry(Part.Circle(Vector(40, 85, 0), Vector(0, 0, 1), 2.5), False)
sketch18.addGeometry(Part.Circle(Vector(30, 85, 0), Vector(0, 0, 1), 2.5), False)
sketch18.addGeometry(Part.Circle(Vector(-30, 85, 0), Vector(0, 0, 1), 2.5), False)
sketch18.addGeometry(Part.Circle(Vector(-40, 85, 0), Vector(0, 0, 1), 2.5), False)
sketch18.addGeometry(Part.Circle(Vector(-50, 85, 0), Vector(0, 0, 1), 2.5), False)
sketch18.addConstraint(Sketcher.Constraint("Equal", 0, 1))
sketch18.addConstraint(Sketcher.Constraint("Equal", 1, 2))
sketch18.addConstraint(Sketcher.Constraint("Equal", 2, 3))
sketch18.addConstraint(Sketcher.Constraint("Equal", 3, 4))
sketch18.addConstraint(Sketcher.Constraint("Equal", 4, 5))
sketch18.addConstraint(Sketcher.Constraint("Symmetric", 2, 3, 3, 3, -2))
sketch18.addConstraint(Sketcher.Constraint("Symmetric", 1, 3, 4, 3, -2))
sketch18.addConstraint(Sketcher.Constraint("Symmetric", 0, 3, 5, 3, -2))
sketch18.addConstraint(Sketcher.Constraint("Horizontal", 0, 3, 1, 3))
sketch18.addConstraint(Sketcher.Constraint("Horizontal", 1, 3, 2, 3))
sketch18.addConstraint(Sketcher.Constraint("Diameter", 0, Q("5 mm")))
sketch18.addConstraint(Sketcher.Constraint("DistanceX", -1, 1, 0, 3, Q("50 mm")))
sketch18.addConstraint(Sketcher.Constraint("DistanceY", -1, 1, 0, 3, Q("85 mm")))
sketch18.addConstraint(Sketcher.Constraint("DistanceX", -1, 1, 1, 3, Q("40 mm")))
sketch18.addConstraint(Sketcher.Constraint("DistanceX", -1, 1, 2, 3, Q("30 mm")))
pocket3 = doc.addObject("PartDesign::Pocket", "Pocket002")
body.addObject(pocket3)
pocket3.Profile = sketch18
pocket3.Length = 10
pocket3.Reversed = True

# Sketch on XZ plane
sketch19 = doc.addObject("Sketcher::SketchObject", "Sketch018")
body.addObject(sketch19)
sketch19.AttachmentSupport = (doc.XZ_Plane, [""])
sketch19.MapMode = "FlatFace"
sketch19.addGeometry(Part.Circle(Vector(-60, 60, 0), Vector(0, 0, 1), 2.5), False)
sketch19.addGeometry(Part.Circle(Vector(60, 60, 0), Vector(0, 0, 1), 2.5), False)
sketch19.addGeometry(Part.Circle(Vector(-60, -60, 0), Vector(0, 0, 1), 2.5), False)
sketch19.addGeometry(Part.Circle(Vector(60, -60, 0), Vector(0, 0, 1), 2.5), False)
sketch19.addConstraint(Sketcher.Constraint("Equal", 0, 1))
sketch19.addConstraint(Sketcher.Constraint("Equal", 1, 2))
sketch19.addConstraint(Sketcher.Constraint("Equal", 2, 3))
sketch19.addConstraint(Sketcher.Constraint("Symmetric", 1, 3, 2, 3, -1, 1))
sketch19.addConstraint(Sketcher.Constraint("Symmetric", 0, 3, 3, 3, -1, 1))
sketch19.addConstraint(Sketcher.Constraint("Symmetric", 0, 3, 1, 3, -2))
sketch19.addConstraint(Sketcher.Constraint("Diameter", 0, Q("5 mm")))
sketch19.addConstraint(Sketcher.Constraint("DistanceX", 0, 3, -1, 1, Q("60 mm")))
sketch19.addConstraint(Sketcher.Constraint("DistanceY", -1, 1, 0, 3, Q("60 mm")))
pocket4 = doc.addObject("PartDesign::Pocket", "Pocket003")
body.addObject(pocket4)
pocket4.Profile = sketch19
pocket4.Length = 10

# Sketch on XY plane
sketch20 = doc.addObject("Sketcher::SketchObject", "Sketch019")
body.addObject(sketch20)
sketch20.AttachmentSupport = (doc.XY_Plane, [""])
sketch20.MapMode = "FlatFace"
sketch20.AttachmentOffset = App.Placement(Vector(0, 0, 75), App.Rotation())
sketch20.addGeometry(Part.Circle(Vector(-14.5, 94.8, 0), Vector(0, 0, 1), 1.5), False)
sketch20.addGeometry(Part.Circle(Vector(14.5, 94.8, 0), Vector(0, 0, 1), 1.5), False)
sketch20.addConstraint(Sketcher.Constraint("Equal", 0, 1))
sketch20.addConstraint(Sketcher.Constraint("Symmetric", 0, 3, 1, 3, -2))
sketch20.addConstraint(Sketcher.Constraint("Diameter", 0, Q("3 mm")))
sketch20.addConstraint(Sketcher.Constraint("DistanceX", 0, 3, 1, 3, Q("29 mm")))
sketch20.addConstraint(Sketcher.Constraint("DistanceY", -1, 1, 0, 3, Q("94.75 mm")))
pocket5 = doc.addObject("PartDesign::Pocket", "Pocket004")
body.addObject(pocket5)
pocket5.Profile = sketch20
pocket5.Length = 5

# Sketch on XZ plane
sketch21 = doc.addObject("Sketcher::SketchObject", "Sketch020")
body.addObject(sketch21)
sketch21.AttachmentSupport = (doc.XZ_Plane, [""])
sketch21.MapMode = "FlatFace"
sketch21.AttachmentOffset = App.Placement(Vector(0, 0, -38.5), App.Rotation())
sketch21.addGeometry(Part.Circle(Vector(32.5, -8.6, 0), Vector(0, 0, 1), 1), False)
sketch21.addGeometry(Part.Circle(Vector(32.5, -27.6, 0), Vector(0, 0, 1), 1), False)
sketch21.addGeometry(Part.Circle(Vector(63, -31.6, 0), Vector(0, 0, 1), 0.6), False)
sketch21.addGeometry(Part.Circle(Vector(57, -31.6, 0), Vector(0, 0, 1), 0.6), False)
sketch21.addGeometry(Part.Circle(Vector(57, -7.3, 0), Vector(0, 0, 1), 0.6), False)
sketch21.addGeometry(Part.Circle(Vector(63, -7.3, 0), Vector(0, 0, 1), 0.6), False)
sketch21.addGeometry(Part.Circle(Vector(57, -28.9, 0), Vector(0, 0, 1), 0.6), False)
sketch21.addGeometry(Part.Circle(Vector(63, -28.9, 0), Vector(0, 0, 1), 0.6), False)
sketch21.addGeometry(Part.Circle(Vector(63, -4.6, 0), Vector(0, 0, 1), 0.6), False)
sketch21.addGeometry(Part.Circle(Vector(57, -4.6, 0), Vector(0, 0, 1), 0.6), False)
sketch21.addConstraint(Sketcher.Constraint("Equal", 0, 1))
sketch21.addConstraint(Sketcher.Constraint("Equal", 2, 3))
sketch21.addConstraint(Sketcher.Constraint("Equal", 3, 4))
sketch21.addConstraint(Sketcher.Constraint("Equal", 4, 5))
sketch21.addConstraint(Sketcher.Constraint("Equal", 5, 6))
sketch21.addConstraint(Sketcher.Constraint("Equal", 6, 7))
sketch21.addConstraint(Sketcher.Constraint("Equal", 7, 8))
sketch21.addConstraint(Sketcher.Constraint("Equal", 8, 9))
sketch21.addConstraint(Sketcher.Constraint("Horizontal", 2, 3, 3, 3))
sketch21.addConstraint(Sketcher.Constraint("Horizontal", 4, 3, 5, 3))
sketch21.addConstraint(Sketcher.Constraint("Horizontal", 8, 3, 9, 3))
sketch21.addConstraint(Sketcher.Constraint("Vertical", 0, 3, 1, 3))
sketch21.addConstraint(Sketcher.Constraint("Vertical", 3, 3, 4, 3))
sketch21.addConstraint(Sketcher.Constraint("Vertical", 2, 3, 5, 3))
sketch21.addConstraint(Sketcher.Constraint("Vertical", 4, 3, 6, 3))
sketch21.addConstraint(Sketcher.Constraint("Vertical", 5, 3, 7, 3))
sketch21.addConstraint(Sketcher.Constraint("Vertical", 7, 3, 8, 3))
sketch21.addConstraint(Sketcher.Constraint("Vertical", 6, 3, 9, 3))
sketch21.addConstraint(Sketcher.Constraint("Diameter", 0, Q("2 mm")))
sketch21.addConstraint(Sketcher.Constraint("Diameter", 2, Q("1.2 mm")))
sketch21.addConstraint(Sketcher.Constraint("DistanceX", -1, 1, 2, 3, Q("63 mm")))
sketch21.addConstraint(Sketcher.Constraint("DistanceX", -1, 1, 3, 3, Q("57 mm")))
sketch21.addConstraint(Sketcher.Constraint("DistanceY", 1, 3, 0, 3, Q("19 mm")))
sketch21.addConstraint(Sketcher.Constraint("DistanceY", 2, 3, 1, 3, Q("4 mm")))
sketch21.addConstraint(Sketcher.Constraint("DistanceY", 2, 3, 8, 3, Q("27 mm")))
sketch21.addConstraint(Sketcher.Constraint("DistanceX", -1, 1, 0, 3, Q("32.5 mm")))
sketch21.addConstraint(Sketcher.Constraint("DistanceY", 3, 3, 4, 3, Q("24.3 mm")))
sketch21.addConstraint(Sketcher.Constraint("DistanceY", 2, 3, 7, 3, Q("2.7 mm")))
sketch21.addConstraint(Sketcher.Constraint("DistanceY", 0, 3, -1, 1, Q("8.61 mm")))
sketch21.addConstraint(Sketcher.Constraint("DistanceY", 6, 3, -1, 1, Q("28.908369 mm")))
pocket6 = doc.addObject("PartDesign::Pocket", "Pocket005")
body.addObject(pocket6)
pocket6.Profile = sketch21
pocket6.Length = 4
pocket6.Reversed = True

# Sketch on XZ plane
sketch22 = doc.addObject("Sketcher::SketchObject", "Sketch021")
body.addObject(sketch22)
sketch22.AttachmentSupport = (doc.XZ_Plane, [""])
sketch22.MapMode = "FlatFace"
sketch22.AttachmentOffset = App.Placement(Vector(0, 0, -20), App.Rotation())
sketch22.addGeometry(Part.Circle(Vector(23.7, -24.5, 0), Vector(0, 0, 1), 0.8), False)
sketch22.addGeometry(Part.Circle(Vector(23.7, -30.5, 0), Vector(0, 0, 1), 0.8), False)
sketch22.addGeometry(Part.Circle(Vector(19.7, -31.7, 0), Vector(0, 0, 1), 0.5), False)
sketch22.addGeometry(Part.Circle(Vector(19.7, -23.2, 0), Vector(0, 0, 1), 0.5), False)
sketch22.addConstraint(Sketcher.Constraint("Equal", 0, 1))
sketch22.addConstraint(Sketcher.Constraint("Equal", 2, 3))
sketch22.addConstraint(Sketcher.Constraint("Vertical", 0, 3, 1, 3))
sketch22.addConstraint(Sketcher.Constraint("Vertical", 2, 3, 3, 3))
sketch22.addConstraint(Sketcher.Constraint("Diameter", 2, Q("1 mm")))
sketch22.addConstraint(Sketcher.Constraint("Diameter", 0, Q("1.5 mm")))
sketch22.addConstraint(Sketcher.Constraint("DistanceX", 2, 3, 1, 3, Q("4 mm")))
sketch22.addConstraint(Sketcher.Constraint("DistanceX", -1, 1, 0, 3, Q("23.7 mm")))
sketch22.addConstraint(Sketcher.Constraint("DistanceY", 1, 3, -1, 1, Q("30.5 mm")))
sketch22.addConstraint(Sketcher.Constraint("DistanceY", 3, 3, -1, 1, Q("23.2 mm")))
sketch22.addConstraint(Sketcher.Constraint("DistanceY", 2, 3, 0, 3, Q("7.25 mm")))
sketch22.addConstraint(Sketcher.Constraint("DistanceY", 0, 3, -1, 1, Q("24.466523 mm")))
pocket7 = doc.addObject("PartDesign::Pocket", "Pocket006")
body.addObject(pocket7)
pocket7.Profile = sketch22
pocket7.Length = 4
pocket7.Reversed = True

doc.recompute()
